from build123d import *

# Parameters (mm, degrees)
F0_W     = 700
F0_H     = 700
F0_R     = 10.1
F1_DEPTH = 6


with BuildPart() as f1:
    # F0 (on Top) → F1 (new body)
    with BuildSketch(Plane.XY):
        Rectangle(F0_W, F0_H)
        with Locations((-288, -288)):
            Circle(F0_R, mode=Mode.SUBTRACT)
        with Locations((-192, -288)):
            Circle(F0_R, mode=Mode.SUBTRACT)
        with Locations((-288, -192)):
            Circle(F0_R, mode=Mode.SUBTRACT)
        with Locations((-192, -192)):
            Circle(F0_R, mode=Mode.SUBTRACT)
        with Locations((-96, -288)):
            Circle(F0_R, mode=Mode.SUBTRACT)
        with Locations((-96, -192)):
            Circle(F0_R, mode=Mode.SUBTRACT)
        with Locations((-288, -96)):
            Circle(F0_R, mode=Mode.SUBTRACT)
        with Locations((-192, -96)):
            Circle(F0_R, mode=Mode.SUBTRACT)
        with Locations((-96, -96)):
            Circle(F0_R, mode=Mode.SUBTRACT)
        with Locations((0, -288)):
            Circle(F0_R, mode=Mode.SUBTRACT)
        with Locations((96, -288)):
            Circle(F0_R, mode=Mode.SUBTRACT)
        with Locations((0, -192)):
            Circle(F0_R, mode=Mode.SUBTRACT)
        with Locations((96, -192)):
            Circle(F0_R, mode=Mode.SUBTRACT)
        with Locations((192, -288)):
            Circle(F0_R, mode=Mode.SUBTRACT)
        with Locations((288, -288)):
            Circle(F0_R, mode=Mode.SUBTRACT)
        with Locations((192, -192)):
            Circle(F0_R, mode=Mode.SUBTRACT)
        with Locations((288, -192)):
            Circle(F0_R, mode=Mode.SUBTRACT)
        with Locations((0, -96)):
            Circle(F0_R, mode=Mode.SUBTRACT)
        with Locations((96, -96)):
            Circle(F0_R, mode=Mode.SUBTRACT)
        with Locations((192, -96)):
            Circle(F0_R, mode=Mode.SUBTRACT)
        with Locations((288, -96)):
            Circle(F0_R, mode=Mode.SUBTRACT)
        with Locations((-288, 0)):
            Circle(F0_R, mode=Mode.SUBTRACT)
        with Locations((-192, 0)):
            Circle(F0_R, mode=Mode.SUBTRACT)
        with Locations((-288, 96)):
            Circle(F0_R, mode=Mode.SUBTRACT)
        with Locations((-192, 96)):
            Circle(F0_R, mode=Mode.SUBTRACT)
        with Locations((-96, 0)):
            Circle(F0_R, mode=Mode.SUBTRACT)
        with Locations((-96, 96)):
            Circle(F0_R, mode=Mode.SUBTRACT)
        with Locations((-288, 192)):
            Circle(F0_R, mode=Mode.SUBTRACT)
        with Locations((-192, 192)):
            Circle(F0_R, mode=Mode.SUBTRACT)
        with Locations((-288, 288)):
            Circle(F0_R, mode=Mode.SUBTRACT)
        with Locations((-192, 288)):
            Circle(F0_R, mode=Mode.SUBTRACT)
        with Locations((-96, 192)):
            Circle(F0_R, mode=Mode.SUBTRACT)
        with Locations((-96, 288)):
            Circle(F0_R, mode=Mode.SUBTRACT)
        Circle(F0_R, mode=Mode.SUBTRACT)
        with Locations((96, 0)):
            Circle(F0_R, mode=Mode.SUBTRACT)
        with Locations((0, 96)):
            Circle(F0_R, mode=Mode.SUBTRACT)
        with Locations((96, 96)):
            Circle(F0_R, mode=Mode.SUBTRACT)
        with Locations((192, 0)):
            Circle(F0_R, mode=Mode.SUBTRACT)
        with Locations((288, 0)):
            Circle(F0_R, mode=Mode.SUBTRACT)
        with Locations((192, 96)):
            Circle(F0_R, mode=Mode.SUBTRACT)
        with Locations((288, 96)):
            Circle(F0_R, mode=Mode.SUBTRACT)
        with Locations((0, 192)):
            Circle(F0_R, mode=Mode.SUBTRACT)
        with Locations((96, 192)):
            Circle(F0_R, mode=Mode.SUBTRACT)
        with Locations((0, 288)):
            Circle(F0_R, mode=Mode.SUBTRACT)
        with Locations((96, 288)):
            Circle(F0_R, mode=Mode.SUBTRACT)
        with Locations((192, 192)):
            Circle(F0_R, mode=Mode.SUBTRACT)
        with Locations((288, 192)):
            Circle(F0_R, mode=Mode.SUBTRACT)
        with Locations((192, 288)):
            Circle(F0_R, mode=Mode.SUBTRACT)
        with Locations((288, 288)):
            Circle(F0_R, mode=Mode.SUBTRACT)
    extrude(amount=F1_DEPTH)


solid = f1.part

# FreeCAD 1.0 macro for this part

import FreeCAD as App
import Part
import Sketcher

V = App.Vector

doc = App.newDocument("Part")
body = doc.addObject("PartDesign::Body", "Body")

# Sketch on XY plane
sketch1 = body.newObject("Sketcher::SketchObject", "Sketch")
sketch1.AttachmentSupport = (doc.getObject("XY_Plane"), [""])
sketch1.MapMode = "FlatFace"
sketch1.addGeometry([
    Part.LineSegment(V(-350, 350, 0), V(-350, -350, 0)),  # 0
    Part.LineSegment(V(-350, -350, 0), V(350, -350, 0)),  # 1
    Part.LineSegment(V(350, -350, 0), V(350, 350, 0)),  # 2
    Part.LineSegment(V(350, 350, 0), V(-350, 350, 0)),  # 3
    Part.Circle(V(-288, -288, 0), V(0, 0, 1), 10),  # 4
    Part.Circle(V(-192, -288, 0), V(0, 0, 1), 10),  # 5
    Part.Circle(V(-288, -192, 0), V(0, 0, 1), 10),  # 6
    Part.Circle(V(-192, -192, 0), V(0, 0, 1), 10),  # 7
    Part.Circle(V(-96, -288, 0), V(0, 0, 1), 10),  # 8
    Part.Circle(V(-96, -192, 0), V(0, 0, 1), 10),  # 9
    Part.Circle(V(-288, -96, 0), V(0, 0, 1), 10),  # 10
    Part.Circle(V(-192, -96, 0), V(0, 0, 1), 10),  # 11
    Part.Circle(V(-96, -96, 0), V(0, 0, 1), 10),  # 12
    Part.Circle(V(0, -288, 0), V(0, 0, 1), 10),  # 13
    Part.Circle(V(96, -288, 0), V(0, 0, 1), 10),  # 14
    Part.Circle(V(0, -192, 0), V(0, 0, 1), 10),  # 15
    Part.Circle(V(96, -192, 0), V(0, 0, 1), 10),  # 16
    Part.Circle(V(192, -288, 0), V(0, 0, 1), 10),  # 17
    Part.Circle(V(288, -288, 0), V(0, 0, 1), 10),  # 18
    Part.Circle(V(192, -192, 0), V(0, 0, 1), 10),  # 19
    Part.Circle(V(288, -192, 0), V(0, 0, 1), 10),  # 20
    Part.Circle(V(0, -96, 0), V(0, 0, 1), 10),  # 21
    Part.Circle(V(96, -96, 0), V(0, 0, 1), 10),  # 22
    Part.Circle(V(192, -96, 0), V(0, 0, 1), 10),  # 23
    Part.Circle(V(288, -96, 0), V(0, 0, 1), 10),  # 24
    Part.Circle(V(-288, 0, 0), V(0, 0, 1), 10),  # 25
    Part.Circle(V(-192, 0, 0), V(0, 0, 1), 10),  # 26
    Part.Circle(V(-288, 96, 0), V(0, 0, 1), 10),  # 27
    Part.Circle(V(-192, 96, 0), V(0, 0, 1), 10),  # 28
    Part.Circle(V(-96, 0, 0), V(0, 0, 1), 10),  # 29
    Part.Circle(V(-96, 96, 0), V(0, 0, 1), 10),  # 30
    Part.Circle(V(-288, 192, 0), V(0, 0, 1), 10),  # 31
    Part.Circle(V(-192, 192, 0), V(0, 0, 1), 10),  # 32
    Part.Circle(V(-288, 288, 0), V(0, 0, 1), 10),  # 33
    Part.Circle(V(-192, 288, 0), V(0, 0, 1), 10),  # 34
    Part.Circle(V(-96, 192, 0), V(0, 0, 1), 10),  # 35
    Part.Circle(V(-96, 288, 0), V(0, 0, 1), 10),  # 36
    Part.Circle(V(0, 0, 0), V(0, 0, 1), 10),  # 37
    Part.Circle(V(96, 0, 0), V(0, 0, 1), 10),  # 38
    Part.Circle(V(0, 96, 0), V(0, 0, 1), 10),  # 39
    Part.Circle(V(96, 96, 0), V(0, 0, 1), 10),  # 40
    Part.Circle(V(192, 0, 0), V(0, 0, 1), 10),  # 41
    Part.Circle(V(288, 0, 0), V(0, 0, 1), 10),  # 42
    Part.Circle(V(192, 96, 0), V(0, 0, 1), 10),  # 43
    Part.Circle(V(288, 96, 0), V(0, 0, 1), 10),  # 44
    Part.Circle(V(0, 192, 0), V(0, 0, 1), 10),  # 45
    Part.Circle(V(96, 192, 0), V(0, 0, 1), 10),  # 46
    Part.Circle(V(0, 288, 0), V(0, 0, 1), 10),  # 47
    Part.Circle(V(96, 288, 0), V(0, 0, 1), 10),  # 48
    Part.Circle(V(192, 192, 0), V(0, 0, 1), 10),  # 49
    Part.Circle(V(288, 192, 0), V(0, 0, 1), 10),  # 50
    Part.Circle(V(192, 288, 0), V(0, 0, 1), 10),  # 51
    Part.Circle(V(288, 288, 0), V(0, 0, 1), 10),  # 52
], False)
sketch1.addConstraint([
    Sketcher.Constraint("Coincident", 0, 2, 1, 1),
    Sketcher.Constraint("Coincident", 1, 2, 2, 1),
    Sketcher.Constraint("Coincident", 2, 2, 3, 1),
    Sketcher.Constraint("Coincident", 3, 2, 0, 1),
    Sketcher.Constraint("Vertical", 0),
    Sketcher.Constraint("Horizontal", 1),
    Sketcher.Constraint("Vertical", 2),
    Sketcher.Constraint("Horizontal", 3),
    Sketcher.Constraint("Coincident", 37, 3, -1, 1),
    Sketcher.Constraint("Equal", 4, 5),
    Sketcher.Constraint("Equal", 5, 6),
    Sketcher.Constraint("Equal", 6, 7),
    Sketcher.Constraint("Equal", 7, 8),
    Sketcher.Constraint("Equal", 8, 9),
    Sketcher.Constraint("Equal", 9, 10),
    Sketcher.Constraint("Equal", 10, 11),
    Sketcher.Constraint("Equal", 11, 12),
    Sketcher.Constraint("Equal", 12, 13),
    Sketcher.Constraint("Equal", 13, 14),
    Sketcher.Constraint("Equal", 14, 15),
    Sketcher.Constraint("Equal", 15, 16),
    Sketcher.Constraint("Equal", 16, 17),
    Sketcher.Constraint("Equal", 17, 18),
    Sketcher.Constraint("Equal", 18, 19),
    Sketcher.Constraint("Equal", 19, 20),
    Sketcher.Constraint("Equal", 20, 21),
    Sketcher.Constraint("Equal", 21, 22),
    Sketcher.Constraint("Equal", 22, 23),
    Sketcher.Constraint("Equal", 23, 24),
    Sketcher.Constraint("Equal", 24, 25),
    Sketcher.Constraint("Equal", 25, 26),
    Sketcher.Constraint("Equal", 26, 27),
    Sketcher.Constraint("Equal", 27, 28),
    Sketcher.Constraint("Equal", 28, 29),
    Sketcher.Constraint("Equal", 29, 30),
    Sketcher.Constraint("Equal", 30, 31),
    Sketcher.Constraint("Equal", 31, 32),
    Sketcher.Constraint("Equal", 32, 33),
    Sketcher.Constraint("Equal", 33, 34),
    Sketcher.Constraint("Equal", 34, 35),
    Sketcher.Constraint("Equal", 35, 36),
    Sketcher.Constraint("Equal", 36, 37),
    Sketcher.Constraint("Equal", 37, 38),
    Sketcher.Constraint("Equal", 38, 39),
    Sketcher.Constraint("Equal", 39, 40),
    Sketcher.Constraint("Equal", 40, 41),
    Sketcher.Constraint("Equal", 41, 42),
    Sketcher.Constraint("Equal", 42, 43),
    Sketcher.Constraint("Equal", 43, 44),
    Sketcher.Constraint("Equal", 44, 45),
    Sketcher.Constraint("Equal", 45, 46),
    Sketcher.Constraint("Equal", 46, 47),
    Sketcher.Constraint("Equal", 47, 48),
    Sketcher.Constraint("Equal", 48, 49),
    Sketcher.Constraint("Equal", 49, 50),
    Sketcher.Constraint("Equal", 50, 51),
    Sketcher.Constraint("Equal", 51, 52),
    Sketcher.Constraint("Symmetric", 24, 3, 27, 3, -1, 1),
    Sketcher.Constraint("Symmetric", 23, 3, 28, 3, -1, 1),
    Sketcher.Constraint("Symmetric", 22, 3, 30, 3, -1, 1),
    Sketcher.Constraint("Symmetric", 20, 3, 31, 3, -1, 1),
    Sketcher.Constraint("Symmetric", 19, 3, 32, 3, -1, 1),
    Sketcher.Constraint("Symmetric", 18, 3, 33, 3, -1, 1),
    Sketcher.Constraint("Symmetric", 17, 3, 34, 3, -1, 1),
    Sketcher.Constraint("Symmetric", 16, 3, 35, 3, -1, 1),
    Sketcher.Constraint("Symmetric", 14, 3, 36, 3, -1, 1),
    Sketcher.Constraint("Symmetric", 29, 3, 38, 3, -1, 1),
    Sketcher.Constraint("Symmetric", 21, 3, 39, 3, -1, 1),
    Sketcher.Constraint("Symmetric", 12, 3, 40, 3, -1, 1),
    Sketcher.Constraint("Symmetric", 26, 3, 41, 3, -1, 1),
    Sketcher.Constraint("Symmetric", 25, 3, 42, 3, -1, 1),
    Sketcher.Constraint("Symmetric", 11, 3, 43, 3, -1, 1),
    Sketcher.Constraint("Symmetric", 10, 3, 44, 3, -1, 1),
    Sketcher.Constraint("Symmetric", 15, 3, 45, 3, -1, 1),
    Sketcher.Constraint("Symmetric", 9, 3, 46, 3, -1, 1),
    Sketcher.Constraint("Symmetric", 13, 3, 47, 3, -1, 1),
    Sketcher.Constraint("Symmetric", 8, 3, 48, 3, -1, 1),
    Sketcher.Constraint("Symmetric", 7, 3, 49, 3, -1, 1),
    Sketcher.Constraint("Symmetric", 6, 3, 50, 3, -1, 1),
    Sketcher.Constraint("Symmetric", 5, 3, 51, 3, -1, 1),
    Sketcher.Constraint("Symmetric", 4, 3, 52, 3, -1, 1),
    Sketcher.Constraint("Symmetric", 0, 2, 2, 2, -1, 1),
    Sketcher.Constraint("Symmetric", 8, 3, 14, 3, -2),
    Sketcher.Constraint("Symmetric", 9, 3, 16, 3, -2),
    Sketcher.Constraint("Symmetric", 5, 3, 17, 3, -2),
    Sketcher.Constraint("Symmetric", 4, 3, 18, 3, -2),
    Sketcher.Constraint("Symmetric", 7, 3, 19, 3, -2),
    Sketcher.Constraint("Symmetric", 6, 3, 20, 3, -2),
    Sketcher.Constraint("Symmetric", 12, 3, 22, 3, -2),
    Sketcher.Constraint("Symmetric", 11, 3, 23, 3, -2),
    Sketcher.Constraint("Symmetric", 10, 3, 24, 3, -2),
    Sketcher.Constraint("PointOnObject", 13, 3, -2),
    Sketcher.Constraint("PointOnObject", 15, 3, -2),
    Sketcher.Constraint("PointOnObject", 21, 3, -2),
    Sketcher.Constraint("PointOnObject", 25, 3, -1),
    Sketcher.Constraint("PointOnObject", 26, 3, -1),
    Sketcher.Constraint("PointOnObject", 29, 3, -1),
    Sketcher.Constraint("Horizontal", 4, 3, 5, 3),
    Sketcher.Constraint("Horizontal", 6, 3, 7, 3),
    Sketcher.Constraint("Horizontal", 5, 3, 8, 3),
    Sketcher.Constraint("Horizontal", 7, 3, 9, 3),
    Sketcher.Constraint("Horizontal", 10, 3, 11, 3),
    Sketcher.Constraint("Horizontal", 11, 3, 12, 3),
    Sketcher.Constraint("Horizontal", 8, 3, 13, 3),
    Sketcher.Constraint("Horizontal", 9, 3, 15, 3),
    Sketcher.Constraint("Horizontal", 12, 3, 21, 3),
    Sketcher.Constraint("Vertical", 4, 3, 6, 3),
    Sketcher.Constraint("Vertical", 5, 3, 7, 3),
    Sketcher.Constraint("Vertical", 8, 3, 9, 3),
    Sketcher.Constraint("Vertical", 6, 3, 10, 3),
    Sketcher.Constraint("Vertical", 7, 3, 11, 3),
    Sketcher.Constraint("Vertical", 9, 3, 12, 3),
    Sketcher.Constraint("Vertical", 10, 3, 25, 3),
    Sketcher.Constraint("Vertical", 11, 3, 26, 3),
    Sketcher.Constraint("Vertical", 12, 3, 29, 3),
    Sketcher.Constraint("Equal", 3, 0),
    Sketcher.Constraint("Diameter", 4, 20.2),
    Sketcher.Constraint("DistanceX", 1, 1, 1, 2, 700.0),
    Sketcher.Constraint("DistanceX", 4, 3, -1, 1, 288.0),
    Sketcher.Constraint("DistanceY", 4, 3, -1, 1, 288.0),
    Sketcher.Constraint("DistanceX", 5, 3, -1, 1, 192.0),
    Sketcher.Constraint("DistanceY", 6, 3, -1, 1, 192.0),
    Sketcher.Constraint("DistanceX", 8, 3, -1, 1, 96.0),
    Sketcher.Constraint("DistanceY", 10, 3, -1, 1, 96.0),
])
pad1 = body.newObject("PartDesign::Pad", "Pad")
pad1.Profile = sketch1
pad1.Length = 6

doc.recompute()
